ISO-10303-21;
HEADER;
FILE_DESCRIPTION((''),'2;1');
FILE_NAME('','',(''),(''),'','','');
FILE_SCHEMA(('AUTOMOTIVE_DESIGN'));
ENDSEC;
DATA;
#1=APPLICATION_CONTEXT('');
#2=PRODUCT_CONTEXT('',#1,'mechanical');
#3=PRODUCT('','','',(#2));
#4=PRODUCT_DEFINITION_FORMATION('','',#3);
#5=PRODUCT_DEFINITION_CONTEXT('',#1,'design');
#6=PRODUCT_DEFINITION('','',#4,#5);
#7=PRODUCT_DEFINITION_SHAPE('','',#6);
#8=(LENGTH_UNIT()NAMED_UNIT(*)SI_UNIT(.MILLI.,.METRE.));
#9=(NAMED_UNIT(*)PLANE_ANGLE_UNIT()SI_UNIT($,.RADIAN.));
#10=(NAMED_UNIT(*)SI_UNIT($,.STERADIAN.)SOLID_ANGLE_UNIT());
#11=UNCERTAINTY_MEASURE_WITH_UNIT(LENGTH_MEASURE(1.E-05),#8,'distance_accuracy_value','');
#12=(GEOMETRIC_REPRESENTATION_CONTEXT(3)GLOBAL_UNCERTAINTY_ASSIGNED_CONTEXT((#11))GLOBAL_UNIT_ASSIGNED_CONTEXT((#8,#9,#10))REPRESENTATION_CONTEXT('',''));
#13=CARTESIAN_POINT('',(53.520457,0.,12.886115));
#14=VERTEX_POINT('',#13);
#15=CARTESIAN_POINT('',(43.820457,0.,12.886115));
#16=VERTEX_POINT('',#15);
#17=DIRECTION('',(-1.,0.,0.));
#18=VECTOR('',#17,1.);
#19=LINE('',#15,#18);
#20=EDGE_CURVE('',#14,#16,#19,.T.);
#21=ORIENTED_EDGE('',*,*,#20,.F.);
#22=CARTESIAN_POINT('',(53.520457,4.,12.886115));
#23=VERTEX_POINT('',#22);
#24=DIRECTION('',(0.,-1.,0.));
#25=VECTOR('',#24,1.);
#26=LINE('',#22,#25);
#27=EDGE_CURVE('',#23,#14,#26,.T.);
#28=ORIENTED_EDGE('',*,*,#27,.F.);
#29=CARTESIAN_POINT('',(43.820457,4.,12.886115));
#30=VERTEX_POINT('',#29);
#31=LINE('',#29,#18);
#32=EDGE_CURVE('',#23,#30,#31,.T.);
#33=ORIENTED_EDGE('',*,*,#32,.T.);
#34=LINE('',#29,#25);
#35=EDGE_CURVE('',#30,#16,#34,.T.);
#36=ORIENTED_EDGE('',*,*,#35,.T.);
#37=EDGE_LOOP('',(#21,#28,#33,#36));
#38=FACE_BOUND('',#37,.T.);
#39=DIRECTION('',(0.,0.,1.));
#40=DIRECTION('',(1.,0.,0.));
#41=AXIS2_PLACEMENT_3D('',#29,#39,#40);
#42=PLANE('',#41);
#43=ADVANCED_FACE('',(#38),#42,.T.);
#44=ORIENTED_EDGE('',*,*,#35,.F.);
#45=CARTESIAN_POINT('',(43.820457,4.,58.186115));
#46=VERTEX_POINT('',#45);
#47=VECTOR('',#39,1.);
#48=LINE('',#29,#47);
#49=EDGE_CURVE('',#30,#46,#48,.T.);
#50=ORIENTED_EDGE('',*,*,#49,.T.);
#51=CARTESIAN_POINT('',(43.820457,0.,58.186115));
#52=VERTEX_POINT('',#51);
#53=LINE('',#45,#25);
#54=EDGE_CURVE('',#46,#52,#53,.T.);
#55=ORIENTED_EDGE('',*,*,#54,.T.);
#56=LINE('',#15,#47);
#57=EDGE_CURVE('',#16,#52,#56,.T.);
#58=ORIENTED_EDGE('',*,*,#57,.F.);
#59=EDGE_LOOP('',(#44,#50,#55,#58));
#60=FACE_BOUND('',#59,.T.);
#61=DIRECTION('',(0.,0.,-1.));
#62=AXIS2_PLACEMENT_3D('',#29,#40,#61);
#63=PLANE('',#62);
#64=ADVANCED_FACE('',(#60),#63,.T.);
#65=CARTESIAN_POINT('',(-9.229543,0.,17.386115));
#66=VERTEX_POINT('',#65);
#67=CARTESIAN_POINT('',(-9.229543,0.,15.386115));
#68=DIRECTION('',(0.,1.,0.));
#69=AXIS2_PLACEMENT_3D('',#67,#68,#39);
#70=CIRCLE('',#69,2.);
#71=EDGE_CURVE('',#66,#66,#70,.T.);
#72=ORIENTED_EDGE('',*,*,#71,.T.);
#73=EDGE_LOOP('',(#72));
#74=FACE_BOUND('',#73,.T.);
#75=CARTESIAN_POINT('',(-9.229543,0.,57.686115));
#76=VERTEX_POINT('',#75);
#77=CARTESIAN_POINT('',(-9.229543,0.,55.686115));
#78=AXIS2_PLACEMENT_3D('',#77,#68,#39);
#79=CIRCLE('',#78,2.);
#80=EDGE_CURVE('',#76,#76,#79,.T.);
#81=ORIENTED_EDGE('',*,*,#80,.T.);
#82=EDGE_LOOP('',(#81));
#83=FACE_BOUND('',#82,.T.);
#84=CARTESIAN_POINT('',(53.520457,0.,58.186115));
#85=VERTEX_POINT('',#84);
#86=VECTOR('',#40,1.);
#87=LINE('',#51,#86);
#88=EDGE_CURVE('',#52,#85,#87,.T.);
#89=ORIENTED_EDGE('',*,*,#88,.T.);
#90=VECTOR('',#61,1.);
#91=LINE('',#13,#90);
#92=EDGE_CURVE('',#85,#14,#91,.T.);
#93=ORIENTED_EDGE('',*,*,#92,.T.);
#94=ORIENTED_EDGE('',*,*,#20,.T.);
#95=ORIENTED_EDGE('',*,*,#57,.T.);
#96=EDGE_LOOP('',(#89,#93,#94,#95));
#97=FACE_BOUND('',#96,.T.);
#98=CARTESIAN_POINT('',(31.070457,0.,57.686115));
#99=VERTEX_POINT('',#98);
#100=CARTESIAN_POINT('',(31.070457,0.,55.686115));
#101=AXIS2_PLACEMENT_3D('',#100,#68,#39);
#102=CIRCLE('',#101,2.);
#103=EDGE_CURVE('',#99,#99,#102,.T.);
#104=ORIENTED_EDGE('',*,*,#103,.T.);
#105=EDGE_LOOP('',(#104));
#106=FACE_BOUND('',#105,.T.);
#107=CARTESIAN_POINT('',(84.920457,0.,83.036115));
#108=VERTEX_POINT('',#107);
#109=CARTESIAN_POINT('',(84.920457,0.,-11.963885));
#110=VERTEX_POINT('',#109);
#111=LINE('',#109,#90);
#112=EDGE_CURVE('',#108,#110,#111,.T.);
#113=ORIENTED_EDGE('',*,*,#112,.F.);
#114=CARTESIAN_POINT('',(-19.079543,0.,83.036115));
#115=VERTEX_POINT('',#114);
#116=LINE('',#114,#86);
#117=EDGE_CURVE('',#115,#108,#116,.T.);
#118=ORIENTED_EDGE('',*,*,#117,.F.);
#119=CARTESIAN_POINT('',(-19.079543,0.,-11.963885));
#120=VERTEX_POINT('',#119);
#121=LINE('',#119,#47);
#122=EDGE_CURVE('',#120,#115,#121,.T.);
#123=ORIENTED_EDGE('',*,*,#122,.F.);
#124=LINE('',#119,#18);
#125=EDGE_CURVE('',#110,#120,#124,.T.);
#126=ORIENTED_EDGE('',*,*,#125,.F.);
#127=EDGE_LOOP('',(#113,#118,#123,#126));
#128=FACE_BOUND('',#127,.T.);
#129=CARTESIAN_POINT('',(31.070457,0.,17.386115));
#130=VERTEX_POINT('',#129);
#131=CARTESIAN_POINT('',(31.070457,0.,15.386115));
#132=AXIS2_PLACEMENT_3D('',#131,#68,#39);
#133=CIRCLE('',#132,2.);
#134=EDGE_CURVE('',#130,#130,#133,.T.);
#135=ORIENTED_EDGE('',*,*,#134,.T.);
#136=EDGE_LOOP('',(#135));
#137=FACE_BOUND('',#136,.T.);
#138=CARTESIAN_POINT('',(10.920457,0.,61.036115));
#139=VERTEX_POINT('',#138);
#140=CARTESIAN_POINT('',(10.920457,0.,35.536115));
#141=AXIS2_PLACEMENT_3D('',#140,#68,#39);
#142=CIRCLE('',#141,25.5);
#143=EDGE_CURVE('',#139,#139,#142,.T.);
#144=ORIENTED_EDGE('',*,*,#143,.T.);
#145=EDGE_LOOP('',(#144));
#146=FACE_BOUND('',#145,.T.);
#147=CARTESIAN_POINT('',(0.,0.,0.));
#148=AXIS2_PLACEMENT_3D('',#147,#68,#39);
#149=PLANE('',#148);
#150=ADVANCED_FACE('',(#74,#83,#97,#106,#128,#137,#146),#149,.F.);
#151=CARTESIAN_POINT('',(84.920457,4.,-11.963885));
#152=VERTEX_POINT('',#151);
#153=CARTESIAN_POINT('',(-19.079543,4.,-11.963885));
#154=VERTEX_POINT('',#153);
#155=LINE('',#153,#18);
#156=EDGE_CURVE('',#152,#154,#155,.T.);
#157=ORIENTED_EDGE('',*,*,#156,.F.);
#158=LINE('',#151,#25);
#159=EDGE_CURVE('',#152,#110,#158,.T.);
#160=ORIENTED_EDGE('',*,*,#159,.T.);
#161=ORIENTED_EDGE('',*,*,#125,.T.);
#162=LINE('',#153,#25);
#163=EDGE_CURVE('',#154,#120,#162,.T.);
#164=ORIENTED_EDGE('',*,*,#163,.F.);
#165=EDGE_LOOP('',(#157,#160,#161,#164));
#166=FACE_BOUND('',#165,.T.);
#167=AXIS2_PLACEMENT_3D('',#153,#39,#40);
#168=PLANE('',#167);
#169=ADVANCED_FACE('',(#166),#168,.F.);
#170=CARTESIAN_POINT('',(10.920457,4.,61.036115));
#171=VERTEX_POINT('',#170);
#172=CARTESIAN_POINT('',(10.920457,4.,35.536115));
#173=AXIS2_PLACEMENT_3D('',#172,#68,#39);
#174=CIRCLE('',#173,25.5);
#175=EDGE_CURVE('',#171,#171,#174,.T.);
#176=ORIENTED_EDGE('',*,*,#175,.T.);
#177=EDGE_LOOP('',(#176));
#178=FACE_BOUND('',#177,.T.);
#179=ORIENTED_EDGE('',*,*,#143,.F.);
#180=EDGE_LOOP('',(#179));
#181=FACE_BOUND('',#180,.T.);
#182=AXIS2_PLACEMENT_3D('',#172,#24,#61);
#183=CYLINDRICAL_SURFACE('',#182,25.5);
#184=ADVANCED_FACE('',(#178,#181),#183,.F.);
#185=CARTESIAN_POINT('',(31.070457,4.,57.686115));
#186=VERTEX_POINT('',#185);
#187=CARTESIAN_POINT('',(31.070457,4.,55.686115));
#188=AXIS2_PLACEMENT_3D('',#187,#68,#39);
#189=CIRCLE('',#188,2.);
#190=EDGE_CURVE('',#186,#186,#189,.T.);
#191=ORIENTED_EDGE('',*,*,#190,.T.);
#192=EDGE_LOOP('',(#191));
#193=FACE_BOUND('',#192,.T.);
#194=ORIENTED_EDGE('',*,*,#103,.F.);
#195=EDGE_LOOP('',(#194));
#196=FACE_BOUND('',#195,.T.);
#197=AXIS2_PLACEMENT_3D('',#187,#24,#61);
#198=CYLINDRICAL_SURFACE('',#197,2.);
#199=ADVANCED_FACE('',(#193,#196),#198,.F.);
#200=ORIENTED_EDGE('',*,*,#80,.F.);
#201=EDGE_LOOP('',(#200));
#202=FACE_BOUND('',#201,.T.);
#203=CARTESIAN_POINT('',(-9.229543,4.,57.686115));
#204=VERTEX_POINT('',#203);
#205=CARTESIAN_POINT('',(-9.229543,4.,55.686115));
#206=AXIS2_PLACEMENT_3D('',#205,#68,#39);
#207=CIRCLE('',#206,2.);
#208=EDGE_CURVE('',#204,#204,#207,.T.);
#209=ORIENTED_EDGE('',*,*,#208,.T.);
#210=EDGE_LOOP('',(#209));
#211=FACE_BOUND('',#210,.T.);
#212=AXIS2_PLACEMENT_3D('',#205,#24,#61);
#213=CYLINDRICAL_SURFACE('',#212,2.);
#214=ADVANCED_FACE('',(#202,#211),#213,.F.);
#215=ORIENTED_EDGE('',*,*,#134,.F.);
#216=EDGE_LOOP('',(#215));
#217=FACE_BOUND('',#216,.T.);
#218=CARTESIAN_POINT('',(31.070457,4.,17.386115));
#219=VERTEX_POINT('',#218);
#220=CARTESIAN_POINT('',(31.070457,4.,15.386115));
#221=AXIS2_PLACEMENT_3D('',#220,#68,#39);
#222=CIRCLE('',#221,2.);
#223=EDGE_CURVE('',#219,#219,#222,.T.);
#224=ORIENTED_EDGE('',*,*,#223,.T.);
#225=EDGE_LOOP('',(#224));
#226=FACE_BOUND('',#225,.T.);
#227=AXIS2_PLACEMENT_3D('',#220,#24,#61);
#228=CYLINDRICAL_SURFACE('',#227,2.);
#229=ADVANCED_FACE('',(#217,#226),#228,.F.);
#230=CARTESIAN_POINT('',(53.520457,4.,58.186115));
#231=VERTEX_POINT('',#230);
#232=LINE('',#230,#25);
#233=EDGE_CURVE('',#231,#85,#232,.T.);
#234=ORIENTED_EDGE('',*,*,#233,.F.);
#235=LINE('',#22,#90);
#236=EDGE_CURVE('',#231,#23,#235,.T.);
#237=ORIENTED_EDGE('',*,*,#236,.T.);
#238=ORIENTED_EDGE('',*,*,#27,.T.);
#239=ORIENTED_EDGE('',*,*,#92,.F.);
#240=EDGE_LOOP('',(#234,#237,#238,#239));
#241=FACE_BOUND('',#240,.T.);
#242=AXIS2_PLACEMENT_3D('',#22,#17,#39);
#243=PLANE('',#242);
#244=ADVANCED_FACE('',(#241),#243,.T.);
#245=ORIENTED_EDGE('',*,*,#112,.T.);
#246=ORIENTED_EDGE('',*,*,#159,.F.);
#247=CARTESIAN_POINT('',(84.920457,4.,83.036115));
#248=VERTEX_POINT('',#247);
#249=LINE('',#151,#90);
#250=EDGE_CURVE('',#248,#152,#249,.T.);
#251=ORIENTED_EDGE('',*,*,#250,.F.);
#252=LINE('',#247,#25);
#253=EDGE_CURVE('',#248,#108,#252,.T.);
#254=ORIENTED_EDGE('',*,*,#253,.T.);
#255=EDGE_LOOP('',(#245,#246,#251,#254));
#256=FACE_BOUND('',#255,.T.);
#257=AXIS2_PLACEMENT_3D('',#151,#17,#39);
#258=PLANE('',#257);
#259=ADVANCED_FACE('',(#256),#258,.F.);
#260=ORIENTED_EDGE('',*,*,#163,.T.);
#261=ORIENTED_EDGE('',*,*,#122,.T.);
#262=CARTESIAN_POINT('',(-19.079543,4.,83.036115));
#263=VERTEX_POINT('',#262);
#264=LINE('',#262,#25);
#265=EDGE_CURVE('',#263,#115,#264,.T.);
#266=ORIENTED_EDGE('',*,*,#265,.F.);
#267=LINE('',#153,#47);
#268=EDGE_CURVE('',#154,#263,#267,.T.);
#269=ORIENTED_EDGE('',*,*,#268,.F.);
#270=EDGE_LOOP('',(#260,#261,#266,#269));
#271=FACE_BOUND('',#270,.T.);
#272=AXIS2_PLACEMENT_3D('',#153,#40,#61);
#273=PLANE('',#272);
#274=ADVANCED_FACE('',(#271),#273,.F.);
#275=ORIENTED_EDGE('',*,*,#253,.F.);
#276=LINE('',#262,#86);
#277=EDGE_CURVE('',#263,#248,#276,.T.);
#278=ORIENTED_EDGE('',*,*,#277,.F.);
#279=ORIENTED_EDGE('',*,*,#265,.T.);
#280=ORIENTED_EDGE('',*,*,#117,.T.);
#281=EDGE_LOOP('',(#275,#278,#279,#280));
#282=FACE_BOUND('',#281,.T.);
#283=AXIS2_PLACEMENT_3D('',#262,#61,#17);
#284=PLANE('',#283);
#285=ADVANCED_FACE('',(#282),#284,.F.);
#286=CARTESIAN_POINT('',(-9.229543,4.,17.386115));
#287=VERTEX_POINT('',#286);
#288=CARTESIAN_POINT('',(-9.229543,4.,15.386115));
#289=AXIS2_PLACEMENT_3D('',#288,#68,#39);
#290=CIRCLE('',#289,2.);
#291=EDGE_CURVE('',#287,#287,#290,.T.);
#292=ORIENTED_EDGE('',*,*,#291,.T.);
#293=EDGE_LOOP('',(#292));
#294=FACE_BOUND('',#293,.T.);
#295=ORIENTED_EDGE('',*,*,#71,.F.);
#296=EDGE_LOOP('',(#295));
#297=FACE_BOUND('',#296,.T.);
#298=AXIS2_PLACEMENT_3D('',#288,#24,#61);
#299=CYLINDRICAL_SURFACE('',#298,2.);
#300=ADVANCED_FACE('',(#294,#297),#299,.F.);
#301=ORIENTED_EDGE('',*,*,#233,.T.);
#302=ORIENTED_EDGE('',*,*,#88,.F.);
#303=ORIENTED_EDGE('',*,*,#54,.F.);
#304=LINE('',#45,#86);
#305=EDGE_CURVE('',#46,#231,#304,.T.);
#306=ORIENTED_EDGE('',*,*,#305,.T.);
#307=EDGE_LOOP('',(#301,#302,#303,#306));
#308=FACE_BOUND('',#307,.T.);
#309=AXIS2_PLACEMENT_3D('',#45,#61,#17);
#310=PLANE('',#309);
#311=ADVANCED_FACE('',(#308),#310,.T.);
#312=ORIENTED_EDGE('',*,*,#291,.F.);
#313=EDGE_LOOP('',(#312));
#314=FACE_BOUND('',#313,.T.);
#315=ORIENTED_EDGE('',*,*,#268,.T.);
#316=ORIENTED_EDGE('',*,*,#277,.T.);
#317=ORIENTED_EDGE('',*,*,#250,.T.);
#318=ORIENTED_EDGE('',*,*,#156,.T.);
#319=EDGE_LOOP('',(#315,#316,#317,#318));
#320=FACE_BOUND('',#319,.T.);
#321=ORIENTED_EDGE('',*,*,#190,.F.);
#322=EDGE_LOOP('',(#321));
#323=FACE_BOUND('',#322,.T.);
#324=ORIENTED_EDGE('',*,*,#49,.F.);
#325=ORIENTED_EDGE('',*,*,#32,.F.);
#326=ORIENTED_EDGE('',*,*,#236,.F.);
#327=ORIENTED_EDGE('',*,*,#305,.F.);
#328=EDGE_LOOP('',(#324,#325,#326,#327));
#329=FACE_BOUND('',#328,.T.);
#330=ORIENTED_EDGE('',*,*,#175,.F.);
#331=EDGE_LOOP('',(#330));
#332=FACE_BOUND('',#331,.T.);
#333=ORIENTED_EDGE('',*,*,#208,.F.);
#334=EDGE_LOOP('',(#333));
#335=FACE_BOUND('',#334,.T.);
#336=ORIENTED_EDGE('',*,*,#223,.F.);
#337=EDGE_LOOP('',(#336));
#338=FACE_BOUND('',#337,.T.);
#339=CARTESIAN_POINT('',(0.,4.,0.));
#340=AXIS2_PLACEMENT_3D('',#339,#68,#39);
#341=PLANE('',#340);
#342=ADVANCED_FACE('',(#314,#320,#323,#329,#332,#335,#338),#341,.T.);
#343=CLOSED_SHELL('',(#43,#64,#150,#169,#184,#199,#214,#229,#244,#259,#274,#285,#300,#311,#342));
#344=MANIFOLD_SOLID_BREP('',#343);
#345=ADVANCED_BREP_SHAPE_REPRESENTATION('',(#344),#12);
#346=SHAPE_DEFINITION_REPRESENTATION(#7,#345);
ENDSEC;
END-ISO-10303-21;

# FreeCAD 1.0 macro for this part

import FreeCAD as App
import Part
import Sketcher
Q = App.Units.Quantity


def add_polygon(sketch, points):
    """Adds a closed chain of lines whose ends are joined by coincident constraints."""
    first, n = sketch.GeometryCount, len(points)
    for a, b in zip(points, points[1:] + points[:1]):
        sketch.addGeometry(Part.LineSegment(App.Vector(*a, 0), App.Vector(*b, 0)), False)
    for i in range(n):
        sketch.addConstraint(Sketcher.Constraint("Coincident", first + i, 2, first + (i + 1) % n, 1))

doc = App.newDocument("Part")
body = doc.addObject("PartDesign::Body", "Body")

# Sketch on XZ plane
sketch1 = body.newObject("Sketcher::SketchObject", "Sketch")
sketch1.AttachmentSupport = (doc.getObject("XZ_Plane"), [""])
sketch1.MapMode = "FlatFace"
add_polygon(sketch1, [(-19.1, -12), (-19.1, 83), (84.9, 83), (84.9, -12)])  # lines 0-3
sketch1.addGeometry(Part.Circle(App.Vector(-9.2, 55.7, 0), App.Vector(0, 0, 1), 2), False)  # 4
sketch1.addGeometry(Part.Circle(App.Vector(31.1, 55.7, 0), App.Vector(0, 0, 1), 2), False)  # 5
sketch1.addGeometry(Part.Circle(App.Vector(10.9, 35.5, 0), App.Vector(0, 0, 1), 25.5), False)  # 6
sketch1.addGeometry(Part.Circle(App.Vector(-9.2, 15.4, 0), App.Vector(0, 0, 1), 2), False)  # 7
add_polygon(sketch1, [(53.5, 58.2), (43.8, 58.2), (43.8, 12.9), (53.5, 12.9)])  # lines 8-11
sketch1.addGeometry(Part.Circle(App.Vector(31.1, 15.4, 0), App.Vector(0, 0, 1), 2), False)  # 12
sketch1.addConstraint([
    Sketcher.Constraint("Vertical", 0),
    Sketcher.Constraint("Horizontal", 1),
    Sketcher.Constraint("Vertical", 2),
    Sketcher.Constraint("Horizontal", 3),
    Sketcher.Constraint("Horizontal", 8),
    Sketcher.Constraint("Vertical", 9),
    Sketcher.Constraint("Horizontal", 10),
    Sketcher.Constraint("Vertical", 11),
    Sketcher.Constraint("Equal", 4, 5),
    Sketcher.Constraint("Equal", 5, 7),
    Sketcher.Constraint("Equal", 7, 12),
    Sketcher.Constraint("Horizontal", 4, 3, 5, 3),
    Sketcher.Constraint("Horizontal", 7, 3, 12, 3),
    Sketcher.Constraint("Vertical", 4, 3, 7, 3),
    Sketcher.Constraint("Vertical", 5, 3, 12, 3),
    Sketcher.Constraint("Diameter", 4, Q("4 mm")),
    Sketcher.Constraint("Diameter", 6, Q("51 mm")),
    Sketcher.Constraint("DistanceX", 1, 1, 1, 2, Q("104 mm")),
    Sketcher.Constraint("DistanceY", 0, 1, 0, 2, Q("95 mm")),
    Sketcher.Constraint("DistanceX", 8, 2, 8, 1, Q("9.7 mm")),
    Sketcher.Constraint("DistanceY", 9, 2, 9, 1, Q("45.3 mm")),
    Sketcher.Constraint("DistanceX", 0, 2, 6, 3, Q("30 mm")),
    Sketcher.Constraint("DistanceX", 4, 3, 5, 3, Q("40.3 mm")),
    Sketcher.Constraint("DistanceY", 7, 3, 4, 3, Q("40.3 mm")),
    Sketcher.Constraint("DistanceY", 6, 3, 0, 2, Q("47.5 mm")),
    Sketcher.Constraint("DistanceY", 5, 3, 8, 2, Q("2.5 mm")),
    Sketcher.Constraint("DistanceX", 6, 3, 8, 2, Q("32.9 mm")),
    Sketcher.Constraint("DistanceX", 4, 3, 6, 3, Q("20.15 mm")),
    Sketcher.Constraint("DistanceY", 6, 3, 4, 3, Q("20.15 mm")),
    Sketcher.Constraint("DistanceX", 4, 3, -1, 1, Q("9.229543 mm")),
    Sketcher.Constraint("DistanceY", -1, 1, 4, 3, Q("55.686115 mm")),
])
pad1 = body.newObject("PartDesign::Pad", "Pad")
pad1.Profile = sketch1
pad1.Length = 4
pad1.Reversed = True

doc.recompute()
